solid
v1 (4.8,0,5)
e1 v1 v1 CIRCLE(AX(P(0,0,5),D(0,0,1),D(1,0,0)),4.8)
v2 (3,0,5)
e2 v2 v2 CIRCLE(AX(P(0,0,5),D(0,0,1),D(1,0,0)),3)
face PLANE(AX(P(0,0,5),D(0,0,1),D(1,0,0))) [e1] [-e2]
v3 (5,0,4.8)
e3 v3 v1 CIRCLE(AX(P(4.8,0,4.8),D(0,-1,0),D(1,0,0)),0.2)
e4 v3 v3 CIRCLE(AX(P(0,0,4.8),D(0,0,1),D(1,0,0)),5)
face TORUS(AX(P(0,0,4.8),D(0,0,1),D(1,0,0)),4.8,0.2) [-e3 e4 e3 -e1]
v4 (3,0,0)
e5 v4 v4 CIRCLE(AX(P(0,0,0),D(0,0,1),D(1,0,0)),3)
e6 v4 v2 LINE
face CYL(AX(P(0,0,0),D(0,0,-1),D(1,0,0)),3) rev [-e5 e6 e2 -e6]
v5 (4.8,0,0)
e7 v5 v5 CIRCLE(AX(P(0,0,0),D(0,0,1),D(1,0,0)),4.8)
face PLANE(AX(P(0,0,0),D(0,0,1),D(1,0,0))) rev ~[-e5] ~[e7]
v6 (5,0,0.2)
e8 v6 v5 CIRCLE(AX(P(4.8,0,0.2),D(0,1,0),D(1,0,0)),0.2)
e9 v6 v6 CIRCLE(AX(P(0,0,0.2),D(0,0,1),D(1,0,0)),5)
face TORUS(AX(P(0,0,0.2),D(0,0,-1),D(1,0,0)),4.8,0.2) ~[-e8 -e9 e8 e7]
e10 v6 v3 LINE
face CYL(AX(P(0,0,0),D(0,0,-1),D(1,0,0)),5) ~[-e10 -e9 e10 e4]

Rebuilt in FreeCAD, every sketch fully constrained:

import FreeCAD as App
import Part
import Sketcher
from FreeCAD import Vector


def edges_at(feature, points):
    """Names of the edges that pass closest to the given points."""
    edges = feature.Shape.Edges
    near = lambda p: min(range(len(edges)), key=lambda i: edges[i].distToShape(Part.Vertex(*p))[0])
    return sorted({f"Edge{near(p) + 1}" for p in points})

doc = App.newDocument("Part")
body = doc.addObject("PartDesign::Body", "Body")

# Sketch on XY plane
sketch1 = body.newObject("Sketcher::SketchObject", "Sketch")
sketch1.AttachmentSupport = (doc.getObject("XY_Plane"), [""])
sketch1.MapMode = "FlatFace"
sketch1.addGeometry([
    Part.Circle(Vector(0, 0, 0), Vector(0, 0, 1), 5),
    Part.Circle(Vector(0, 0, 0), Vector(0, 0, 1), 3),
], False)
sketch1.addConstraint([
    Sketcher.Constraint("Coincident", 0, 3, -1, 1),
    Sketcher.Constraint("Coincident", 1, 3, -1, 1),
    Sketcher.Constraint("Diameter", 0, 10.0),
    Sketcher.Constraint("Diameter", 1, 6.0),
])
pad1 = body.newObject("PartDesign::Pad", "Pad")
pad1.Profile = sketch1
pad1.Length = 5
doc.recompute()

fillet = body.newObject("PartDesign::Fillet", "Fillet")
fillet.Base = (pad1, edges_at(pad1, [(-5, 0, 0), (-5, 0, 5)]))
fillet.Radius = 0.2

doc.recompute()
